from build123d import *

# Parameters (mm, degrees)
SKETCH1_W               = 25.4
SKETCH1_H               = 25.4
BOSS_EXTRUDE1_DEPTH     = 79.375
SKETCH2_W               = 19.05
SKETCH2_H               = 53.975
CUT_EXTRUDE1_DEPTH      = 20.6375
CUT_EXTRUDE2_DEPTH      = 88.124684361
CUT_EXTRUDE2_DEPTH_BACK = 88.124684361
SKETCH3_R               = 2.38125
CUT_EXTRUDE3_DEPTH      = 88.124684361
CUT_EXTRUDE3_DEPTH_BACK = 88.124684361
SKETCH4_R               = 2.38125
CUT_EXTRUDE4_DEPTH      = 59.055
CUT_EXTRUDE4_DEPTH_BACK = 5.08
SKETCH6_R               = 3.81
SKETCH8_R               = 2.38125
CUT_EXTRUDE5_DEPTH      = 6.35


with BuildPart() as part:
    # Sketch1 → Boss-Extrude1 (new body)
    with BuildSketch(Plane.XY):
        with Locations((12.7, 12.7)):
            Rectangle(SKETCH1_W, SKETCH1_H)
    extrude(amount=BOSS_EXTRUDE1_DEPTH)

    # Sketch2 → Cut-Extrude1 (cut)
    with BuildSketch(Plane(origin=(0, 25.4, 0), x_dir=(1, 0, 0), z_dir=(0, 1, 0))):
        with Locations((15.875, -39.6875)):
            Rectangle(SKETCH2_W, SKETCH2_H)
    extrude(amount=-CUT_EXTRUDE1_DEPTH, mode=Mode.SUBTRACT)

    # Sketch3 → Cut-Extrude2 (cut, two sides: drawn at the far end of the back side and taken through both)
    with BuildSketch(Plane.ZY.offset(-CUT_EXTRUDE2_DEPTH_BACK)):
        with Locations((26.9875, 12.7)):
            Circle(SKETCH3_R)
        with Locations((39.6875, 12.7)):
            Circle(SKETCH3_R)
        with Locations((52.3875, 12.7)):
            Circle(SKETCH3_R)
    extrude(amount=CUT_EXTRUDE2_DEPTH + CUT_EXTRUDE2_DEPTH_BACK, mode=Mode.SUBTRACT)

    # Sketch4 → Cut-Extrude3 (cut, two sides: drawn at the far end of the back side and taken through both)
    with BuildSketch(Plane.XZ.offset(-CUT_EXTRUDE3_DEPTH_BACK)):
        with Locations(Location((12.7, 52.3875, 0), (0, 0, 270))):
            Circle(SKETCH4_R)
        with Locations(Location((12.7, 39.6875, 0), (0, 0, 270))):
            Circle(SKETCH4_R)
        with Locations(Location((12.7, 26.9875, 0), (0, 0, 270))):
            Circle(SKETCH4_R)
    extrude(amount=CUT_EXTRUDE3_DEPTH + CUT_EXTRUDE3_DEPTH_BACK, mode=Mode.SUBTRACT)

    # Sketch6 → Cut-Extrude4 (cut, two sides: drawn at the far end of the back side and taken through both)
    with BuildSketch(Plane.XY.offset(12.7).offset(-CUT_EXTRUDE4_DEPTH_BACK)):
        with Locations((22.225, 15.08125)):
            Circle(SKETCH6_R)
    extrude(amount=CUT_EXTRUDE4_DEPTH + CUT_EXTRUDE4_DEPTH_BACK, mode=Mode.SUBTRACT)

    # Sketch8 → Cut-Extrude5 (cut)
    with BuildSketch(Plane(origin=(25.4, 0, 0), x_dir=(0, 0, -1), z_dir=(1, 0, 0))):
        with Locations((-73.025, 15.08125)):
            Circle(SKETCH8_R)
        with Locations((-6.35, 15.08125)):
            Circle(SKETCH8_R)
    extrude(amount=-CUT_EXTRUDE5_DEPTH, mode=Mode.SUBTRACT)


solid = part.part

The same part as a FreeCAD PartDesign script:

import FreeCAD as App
import Part
import Sketcher
Q = App.Units.Quantity


def add_polygon(sketch, points):
    """Adds a closed chain of lines whose ends are joined by coincident constraints."""
    first, n = sketch.GeometryCount, len(points)
    for a, b in zip(points, points[1:] + points[:1]):
        sketch.addGeometry(Part.LineSegment(App.Vector(*a, 0), App.Vector(*b, 0)), False)
    for i in range(n):
        sketch.addConstraint(Sketcher.Constraint("Coincident", first + i, 2, first + (i + 1) % n, 1))

doc = App.newDocument("Part")
body = doc.addObject("PartDesign::Body", "Body")

# Sketch on XY plane
sketch1 = doc.addObject("Sketcher::SketchObject", "Sketch")
body.addObject(sketch1)
sketch1.AttachmentSupport = (doc.XY_Plane, [""])
sketch1.MapMode = "FlatFace"
add_polygon(sketch1, [(0, 25), (0, 0), (25, 0), (25, 25)])  # lines 0-3
sketch1.addConstraint([
    Sketcher.Constraint("Vertical", 0),
    Sketcher.Constraint("Horizontal", 1),
    Sketcher.Constraint("Vertical", 2),
    Sketcher.Constraint("Horizontal", 3),
    Sketcher.Constraint("Coincident", 0, 2, -1, 1),
    Sketcher.Constraint("Equal", 3, 0),
    Sketcher.Constraint("DistanceX", 1, 1, 1, 2, Q("1 in")),
])
pad1 = doc.addObject("PartDesign::Pad", "Pad")
body.addObject(pad1)
pad1.Profile = sketch1
pad1.Length = Q("3.125 in")

# Sketch on XZ plane
sketch2 = doc.addObject("Sketcher::SketchObject", "Sketch001")
body.addObject(sketch2)
sketch2.AttachmentSupport = (doc.XZ_Plane, [""])
sketch2.MapMode = "FlatFace"
sketch2.AttachmentOffset = App.Placement(App.Vector(0, 0, -1 * 25.4), App.Rotation())
add_polygon(sketch2, [(6, 13), (6, 67), (25, 67), (25, 13)])  # lines 0-3
sketch2.addConstraint([
    Sketcher.Constraint("Vertical", 0),
    Sketcher.Constraint("Horizontal", 1),
    Sketcher.Constraint("Vertical", 2),
    Sketcher.Constraint("Horizontal", 3),
    Sketcher.Constraint("DistanceX", -1, 1, 1, 2, Q("1 in")),
    Sketcher.Constraint("DistanceX", 1, 1, 1, 2, Q("0.75 in")),
    Sketcher.Constraint("DistanceY", -1, 1, 2, 2, Q("0.5 in")),
    Sketcher.Constraint("DistanceY", 0, 1, 0, 2, Q("2.125 in")),
])
pocket1 = doc.addObject("PartDesign::Pocket", "Pocket")
body.addObject(pocket1)
pocket1.Profile = sketch2
pocket1.Length = Q("0.8125 in")
pocket1.Reversed = True

# Sketch on YZ plane
sketch3 = doc.addObject("Sketcher::SketchObject", "Sketch002")
body.addObject(sketch3)
sketch3.AttachmentSupport = (doc.YZ_Plane, [""])
sketch3.MapMode = "FlatFace"
sketch3.addGeometry([
    Part.Circle(App.Vector(12.7, 27, 0), App.Vector(0, 0, 1), 2.4),
    Part.Circle(App.Vector(12.7, 39.7, 0), App.Vector(0, 0, 1), 2.4),
    Part.Circle(App.Vector(12.7, 52.4, 0), App.Vector(0, 0, 1), 2.4),
], False)
sketch3.addConstraint([
    Sketcher.Constraint("Equal", 0, 1),
    Sketcher.Constraint("Equal", 1, 2),
    Sketcher.Constraint("Vertical", 0, 3, 1, 3),
    Sketcher.Constraint("Vertical", 1, 3, 2, 3),
    Sketcher.Constraint("Diameter", 0, Q("0.1875 in")),
    Sketcher.Constraint("DistanceY", 0, 3, 2, 3, Q("1 in")),
    Sketcher.Constraint("DistanceX", -1, 1, 0, 3, Q("0.5 in")),
    Sketcher.Constraint("DistanceY", 0, 3, 1, 3, Q("0.5 in")),
    Sketcher.Constraint("DistanceY", -1, 1, 0, 3, Q("1.0625 in")),
])
pocket2 = doc.addObject("PartDesign::Pocket", "Pocket001")
body.addObject(pocket2)
pocket2.Profile = sketch3
pocket2.Type = "ThroughAll"
pocket2.Midplane = True

# Sketch on XZ plane
sketch4 = doc.addObject("Sketcher::SketchObject", "Sketch003")
body.addObject(sketch4)
sketch4.AttachmentSupport = (doc.XZ_Plane, [""])
sketch4.MapMode = "FlatFace"
sketch4.addGeometry([
    Part.Circle(App.Vector(12.7, 52.4, 0), App.Vector(0, 0, 1), 2.4),
    Part.Circle(App.Vector(12.7, 39.7, 0), App.Vector(0, 0, 1), 2.4),
    Part.Circle(App.Vector(12.7, 27, 0), App.Vector(0, 0, 1), 2.4),
], False)
sketch4.addConstraint([
    Sketcher.Constraint("Equal", 0, 1),
    Sketcher.Constraint("Equal", 1, 2),
    Sketcher.Constraint("Vertical", 0, 3, 1, 3),
    Sketcher.Constraint("Vertical", 1, 3, 2, 3),
    Sketcher.Constraint("Diameter", 0, Q("0.1875 in")),
    Sketcher.Constraint("DistanceY", 2, 3, 0, 3, Q("1 in")),
    Sketcher.Constraint("DistanceX", -1, 1, 0, 3, Q("0.5 in")),
    Sketcher.Constraint("DistanceY", 1, 3, 0, 3, Q("0.5 in")),
    Sketcher.Constraint("DistanceY", -1, 1, 0, 3, Q("2.0625 in")),
])
pocket3 = doc.addObject("PartDesign::Pocket", "Pocket002")
body.addObject(pocket3)
pocket3.Profile = sketch4
pocket3.Type = "ThroughAll"
pocket3.Midplane = True

# Sketch on XY plane
sketch5 = doc.addObject("Sketcher::SketchObject", "Sketch004")
body.addObject(sketch5)
sketch5.AttachmentSupport = (doc.XY_Plane, [""])
sketch5.MapMode = "FlatFace"
sketch5.AttachmentOffset = App.Placement(App.Vector(0, 0, 0.5 * 25.4), App.Rotation())
sketch5.addGeometry(Part.Circle(App.Vector(22.2, 15.1, 0), App.Vector(0, 0, 1), 3.8), False)
sketch5.addConstraint([
    Sketcher.Constraint("Diameter", 0, Q("0.3 in")),
    Sketcher.Constraint("DistanceX", -1, 1, 0, 3, Q("0.875 in")),
    Sketcher.Constraint("DistanceY", -1, 1, 0, 3, Q("0.59375 in")),
])
pocket4 = doc.addObject("PartDesign::Pocket", "Pocket003")
body.addObject(pocket4)
pocket4.Profile = sketch5
pocket4.Type = "TwoLengths"
pocket4.Length = Q("2.325 in")
pocket4.Length2 = Q("0.2 in")
pocket4.Reversed = True

# Sketch on YZ plane
sketch6 = doc.addObject("Sketcher::SketchObject", "Sketch005")
body.addObject(sketch6)
sketch6.AttachmentSupport = (doc.YZ_Plane, [""])
sketch6.MapMode = "FlatFace"
sketch6.AttachmentOffset = App.Placement(App.Vector(0, 0, 1 * 25.4), App.Rotation())
sketch6.addGeometry([
    Part.Circle(App.Vector(15.1, 73, 0), App.Vector(0, 0, 1), 2.4),
    Part.Circle(App.Vector(15.1, 6.3, 0), App.Vector(0, 0, 1), 2.4),
], False)
sketch6.addConstraint([
    Sketcher.Constraint("Equal", 0, 1),
    Sketcher.Constraint("Vertical", 0, 3, 1, 3),
    Sketcher.Constraint("Diameter", 0, Q("0.1875 in")),
    Sketcher.Constraint("DistanceY", -1, 1, 1, 3, Q("0.25 in")),
    Sketcher.Constraint("DistanceX", -1, 1, 0, 3, Q("0.59375 in")),
    Sketcher.Constraint("DistanceY", -1, 1, 0, 3, Q("2.875 in")),
])
pocket5 = doc.addObject("PartDesign::Pocket", "Pocket004")
body.addObject(pocket5)
pocket5.Profile = sketch6
pocket5.Length = Q("0.25 in")

doc.recompute()
